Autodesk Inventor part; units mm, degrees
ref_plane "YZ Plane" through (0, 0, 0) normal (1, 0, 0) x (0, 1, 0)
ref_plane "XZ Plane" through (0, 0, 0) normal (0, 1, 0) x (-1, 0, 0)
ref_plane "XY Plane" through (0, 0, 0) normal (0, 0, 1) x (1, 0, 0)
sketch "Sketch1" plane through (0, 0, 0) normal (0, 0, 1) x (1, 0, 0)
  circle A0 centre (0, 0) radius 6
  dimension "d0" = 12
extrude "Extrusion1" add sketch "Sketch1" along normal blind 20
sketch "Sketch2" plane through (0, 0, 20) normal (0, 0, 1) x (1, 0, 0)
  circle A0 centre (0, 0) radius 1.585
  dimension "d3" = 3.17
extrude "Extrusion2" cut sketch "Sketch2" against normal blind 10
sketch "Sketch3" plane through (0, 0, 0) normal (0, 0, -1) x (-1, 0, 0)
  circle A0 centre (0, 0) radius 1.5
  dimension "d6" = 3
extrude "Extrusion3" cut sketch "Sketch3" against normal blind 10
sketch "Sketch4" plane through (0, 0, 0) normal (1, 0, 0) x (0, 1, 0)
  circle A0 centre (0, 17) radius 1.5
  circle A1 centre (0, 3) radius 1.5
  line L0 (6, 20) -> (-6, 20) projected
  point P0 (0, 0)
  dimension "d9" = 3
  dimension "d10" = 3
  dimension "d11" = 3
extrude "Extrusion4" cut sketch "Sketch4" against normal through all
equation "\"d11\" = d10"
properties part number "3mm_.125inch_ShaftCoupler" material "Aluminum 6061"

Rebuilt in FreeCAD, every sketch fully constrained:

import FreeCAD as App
import Part
import Sketcher
from FreeCAD import Vector

doc = App.newDocument("Part")
body = doc.addObject("PartDesign::Body", "Body")

# Sketch on XY plane
sketch1 = body.newObject("Sketcher::SketchObject", "Sketch")
sketch1.AttachmentSupport = (doc.getObject("XY_Plane"), [""])
sketch1.MapMode = "FlatFace"
sketch1.addGeometry(Part.Circle(Vector(0, 0, 0), Vector(0, 0, 1), 6), False)
sketch1.addConstraint(Sketcher.Constraint("Coincident", 0, 3, -1, 1))
sketch1.addConstraint(Sketcher.Constraint("Diameter", 0, 12.0))
pad1 = body.newObject("PartDesign::Pad", "Pad")
pad1.Profile = sketch1
pad1.Length = 20

# Sketch on XY plane
sketch2 = body.newObject("Sketcher::SketchObject", "Sketch001")
sketch2.AttachmentSupport = (doc.getObject("XY_Plane"), [""])
sketch2.MapMode = "FlatFace"
sketch2.AttachmentOffset = App.Placement(Vector(0, 0, 20), App.Rotation())
sketch2.addGeometry(Part.Circle(Vector(0, 0, 0), Vector(0, 0, 1), 1.585), False)
sketch2.addConstraint(Sketcher.Constraint("Coincident", 0, 3, -1, 1))
sketch2.addConstraint(Sketcher.Constraint("Diameter", 0, 3.17))
pocket1 = body.newObject("PartDesign::Pocket", "Pocket")
pocket1.Profile = sketch2
pocket1.Length = 10

# Sketch on XY plane
sketch3 = body.newObject("Sketcher::SketchObject", "Sketch002")
sketch3.AttachmentSupport = (doc.getObject("XY_Plane"), [""])
sketch3.MapMode = "FlatFace"
sketch3.addGeometry(Part.Circle(Vector(0, 0, 0), Vector(0, 0, 1), 1.5), False)
sketch3.addConstraint(Sketcher.Constraint("Coincident", 0, 3, -1, 1))
sketch3.addConstraint(Sketcher.Constraint("Diameter", 0, 3.0))
pocket2 = body.newObject("PartDesign::Pocket", "Pocket001")
pocket2.Profile = sketch3
pocket2.Length = 10
pocket2.Reversed = True

# Sketch on YZ plane
sketch4 = body.newObject("Sketcher::SketchObject", "Sketch003")
sketch4.AttachmentSupport = (doc.getObject("YZ_Plane"), [""])
sketch4.MapMode = "FlatFace"
sketch4.addGeometry(Part.Circle(Vector(0, 17, 0), Vector(0, 0, 1), 1.5), False)
sketch4.addGeometry(Part.Circle(Vector(0, 3, 0), Vector(0, 0, 1), 1.5), False)
sketch4.addConstraint(Sketcher.Constraint("Equal", 0, 1))
sketch4.addConstraint(Sketcher.Constraint("PointOnObject", 0, 3, -2))
sketch4.addConstraint(Sketcher.Constraint("PointOnObject", 1, 3, -2))
sketch4.addConstraint(Sketcher.Constraint("Diameter", 0, 3.0))
sketch4.addConstraint(Sketcher.Constraint("DistanceY", -1, 1, 1, 3, 3.0))
sketch4.addConstraint(Sketcher.Constraint("DistanceY", -1, 1, 0, 3, 17.0))
pocket3 = body.newObject("PartDesign::Pocket", "Pocket002")
pocket3.Profile = sketch4
pocket3.Type = "ThroughAll"

doc.recompute()
